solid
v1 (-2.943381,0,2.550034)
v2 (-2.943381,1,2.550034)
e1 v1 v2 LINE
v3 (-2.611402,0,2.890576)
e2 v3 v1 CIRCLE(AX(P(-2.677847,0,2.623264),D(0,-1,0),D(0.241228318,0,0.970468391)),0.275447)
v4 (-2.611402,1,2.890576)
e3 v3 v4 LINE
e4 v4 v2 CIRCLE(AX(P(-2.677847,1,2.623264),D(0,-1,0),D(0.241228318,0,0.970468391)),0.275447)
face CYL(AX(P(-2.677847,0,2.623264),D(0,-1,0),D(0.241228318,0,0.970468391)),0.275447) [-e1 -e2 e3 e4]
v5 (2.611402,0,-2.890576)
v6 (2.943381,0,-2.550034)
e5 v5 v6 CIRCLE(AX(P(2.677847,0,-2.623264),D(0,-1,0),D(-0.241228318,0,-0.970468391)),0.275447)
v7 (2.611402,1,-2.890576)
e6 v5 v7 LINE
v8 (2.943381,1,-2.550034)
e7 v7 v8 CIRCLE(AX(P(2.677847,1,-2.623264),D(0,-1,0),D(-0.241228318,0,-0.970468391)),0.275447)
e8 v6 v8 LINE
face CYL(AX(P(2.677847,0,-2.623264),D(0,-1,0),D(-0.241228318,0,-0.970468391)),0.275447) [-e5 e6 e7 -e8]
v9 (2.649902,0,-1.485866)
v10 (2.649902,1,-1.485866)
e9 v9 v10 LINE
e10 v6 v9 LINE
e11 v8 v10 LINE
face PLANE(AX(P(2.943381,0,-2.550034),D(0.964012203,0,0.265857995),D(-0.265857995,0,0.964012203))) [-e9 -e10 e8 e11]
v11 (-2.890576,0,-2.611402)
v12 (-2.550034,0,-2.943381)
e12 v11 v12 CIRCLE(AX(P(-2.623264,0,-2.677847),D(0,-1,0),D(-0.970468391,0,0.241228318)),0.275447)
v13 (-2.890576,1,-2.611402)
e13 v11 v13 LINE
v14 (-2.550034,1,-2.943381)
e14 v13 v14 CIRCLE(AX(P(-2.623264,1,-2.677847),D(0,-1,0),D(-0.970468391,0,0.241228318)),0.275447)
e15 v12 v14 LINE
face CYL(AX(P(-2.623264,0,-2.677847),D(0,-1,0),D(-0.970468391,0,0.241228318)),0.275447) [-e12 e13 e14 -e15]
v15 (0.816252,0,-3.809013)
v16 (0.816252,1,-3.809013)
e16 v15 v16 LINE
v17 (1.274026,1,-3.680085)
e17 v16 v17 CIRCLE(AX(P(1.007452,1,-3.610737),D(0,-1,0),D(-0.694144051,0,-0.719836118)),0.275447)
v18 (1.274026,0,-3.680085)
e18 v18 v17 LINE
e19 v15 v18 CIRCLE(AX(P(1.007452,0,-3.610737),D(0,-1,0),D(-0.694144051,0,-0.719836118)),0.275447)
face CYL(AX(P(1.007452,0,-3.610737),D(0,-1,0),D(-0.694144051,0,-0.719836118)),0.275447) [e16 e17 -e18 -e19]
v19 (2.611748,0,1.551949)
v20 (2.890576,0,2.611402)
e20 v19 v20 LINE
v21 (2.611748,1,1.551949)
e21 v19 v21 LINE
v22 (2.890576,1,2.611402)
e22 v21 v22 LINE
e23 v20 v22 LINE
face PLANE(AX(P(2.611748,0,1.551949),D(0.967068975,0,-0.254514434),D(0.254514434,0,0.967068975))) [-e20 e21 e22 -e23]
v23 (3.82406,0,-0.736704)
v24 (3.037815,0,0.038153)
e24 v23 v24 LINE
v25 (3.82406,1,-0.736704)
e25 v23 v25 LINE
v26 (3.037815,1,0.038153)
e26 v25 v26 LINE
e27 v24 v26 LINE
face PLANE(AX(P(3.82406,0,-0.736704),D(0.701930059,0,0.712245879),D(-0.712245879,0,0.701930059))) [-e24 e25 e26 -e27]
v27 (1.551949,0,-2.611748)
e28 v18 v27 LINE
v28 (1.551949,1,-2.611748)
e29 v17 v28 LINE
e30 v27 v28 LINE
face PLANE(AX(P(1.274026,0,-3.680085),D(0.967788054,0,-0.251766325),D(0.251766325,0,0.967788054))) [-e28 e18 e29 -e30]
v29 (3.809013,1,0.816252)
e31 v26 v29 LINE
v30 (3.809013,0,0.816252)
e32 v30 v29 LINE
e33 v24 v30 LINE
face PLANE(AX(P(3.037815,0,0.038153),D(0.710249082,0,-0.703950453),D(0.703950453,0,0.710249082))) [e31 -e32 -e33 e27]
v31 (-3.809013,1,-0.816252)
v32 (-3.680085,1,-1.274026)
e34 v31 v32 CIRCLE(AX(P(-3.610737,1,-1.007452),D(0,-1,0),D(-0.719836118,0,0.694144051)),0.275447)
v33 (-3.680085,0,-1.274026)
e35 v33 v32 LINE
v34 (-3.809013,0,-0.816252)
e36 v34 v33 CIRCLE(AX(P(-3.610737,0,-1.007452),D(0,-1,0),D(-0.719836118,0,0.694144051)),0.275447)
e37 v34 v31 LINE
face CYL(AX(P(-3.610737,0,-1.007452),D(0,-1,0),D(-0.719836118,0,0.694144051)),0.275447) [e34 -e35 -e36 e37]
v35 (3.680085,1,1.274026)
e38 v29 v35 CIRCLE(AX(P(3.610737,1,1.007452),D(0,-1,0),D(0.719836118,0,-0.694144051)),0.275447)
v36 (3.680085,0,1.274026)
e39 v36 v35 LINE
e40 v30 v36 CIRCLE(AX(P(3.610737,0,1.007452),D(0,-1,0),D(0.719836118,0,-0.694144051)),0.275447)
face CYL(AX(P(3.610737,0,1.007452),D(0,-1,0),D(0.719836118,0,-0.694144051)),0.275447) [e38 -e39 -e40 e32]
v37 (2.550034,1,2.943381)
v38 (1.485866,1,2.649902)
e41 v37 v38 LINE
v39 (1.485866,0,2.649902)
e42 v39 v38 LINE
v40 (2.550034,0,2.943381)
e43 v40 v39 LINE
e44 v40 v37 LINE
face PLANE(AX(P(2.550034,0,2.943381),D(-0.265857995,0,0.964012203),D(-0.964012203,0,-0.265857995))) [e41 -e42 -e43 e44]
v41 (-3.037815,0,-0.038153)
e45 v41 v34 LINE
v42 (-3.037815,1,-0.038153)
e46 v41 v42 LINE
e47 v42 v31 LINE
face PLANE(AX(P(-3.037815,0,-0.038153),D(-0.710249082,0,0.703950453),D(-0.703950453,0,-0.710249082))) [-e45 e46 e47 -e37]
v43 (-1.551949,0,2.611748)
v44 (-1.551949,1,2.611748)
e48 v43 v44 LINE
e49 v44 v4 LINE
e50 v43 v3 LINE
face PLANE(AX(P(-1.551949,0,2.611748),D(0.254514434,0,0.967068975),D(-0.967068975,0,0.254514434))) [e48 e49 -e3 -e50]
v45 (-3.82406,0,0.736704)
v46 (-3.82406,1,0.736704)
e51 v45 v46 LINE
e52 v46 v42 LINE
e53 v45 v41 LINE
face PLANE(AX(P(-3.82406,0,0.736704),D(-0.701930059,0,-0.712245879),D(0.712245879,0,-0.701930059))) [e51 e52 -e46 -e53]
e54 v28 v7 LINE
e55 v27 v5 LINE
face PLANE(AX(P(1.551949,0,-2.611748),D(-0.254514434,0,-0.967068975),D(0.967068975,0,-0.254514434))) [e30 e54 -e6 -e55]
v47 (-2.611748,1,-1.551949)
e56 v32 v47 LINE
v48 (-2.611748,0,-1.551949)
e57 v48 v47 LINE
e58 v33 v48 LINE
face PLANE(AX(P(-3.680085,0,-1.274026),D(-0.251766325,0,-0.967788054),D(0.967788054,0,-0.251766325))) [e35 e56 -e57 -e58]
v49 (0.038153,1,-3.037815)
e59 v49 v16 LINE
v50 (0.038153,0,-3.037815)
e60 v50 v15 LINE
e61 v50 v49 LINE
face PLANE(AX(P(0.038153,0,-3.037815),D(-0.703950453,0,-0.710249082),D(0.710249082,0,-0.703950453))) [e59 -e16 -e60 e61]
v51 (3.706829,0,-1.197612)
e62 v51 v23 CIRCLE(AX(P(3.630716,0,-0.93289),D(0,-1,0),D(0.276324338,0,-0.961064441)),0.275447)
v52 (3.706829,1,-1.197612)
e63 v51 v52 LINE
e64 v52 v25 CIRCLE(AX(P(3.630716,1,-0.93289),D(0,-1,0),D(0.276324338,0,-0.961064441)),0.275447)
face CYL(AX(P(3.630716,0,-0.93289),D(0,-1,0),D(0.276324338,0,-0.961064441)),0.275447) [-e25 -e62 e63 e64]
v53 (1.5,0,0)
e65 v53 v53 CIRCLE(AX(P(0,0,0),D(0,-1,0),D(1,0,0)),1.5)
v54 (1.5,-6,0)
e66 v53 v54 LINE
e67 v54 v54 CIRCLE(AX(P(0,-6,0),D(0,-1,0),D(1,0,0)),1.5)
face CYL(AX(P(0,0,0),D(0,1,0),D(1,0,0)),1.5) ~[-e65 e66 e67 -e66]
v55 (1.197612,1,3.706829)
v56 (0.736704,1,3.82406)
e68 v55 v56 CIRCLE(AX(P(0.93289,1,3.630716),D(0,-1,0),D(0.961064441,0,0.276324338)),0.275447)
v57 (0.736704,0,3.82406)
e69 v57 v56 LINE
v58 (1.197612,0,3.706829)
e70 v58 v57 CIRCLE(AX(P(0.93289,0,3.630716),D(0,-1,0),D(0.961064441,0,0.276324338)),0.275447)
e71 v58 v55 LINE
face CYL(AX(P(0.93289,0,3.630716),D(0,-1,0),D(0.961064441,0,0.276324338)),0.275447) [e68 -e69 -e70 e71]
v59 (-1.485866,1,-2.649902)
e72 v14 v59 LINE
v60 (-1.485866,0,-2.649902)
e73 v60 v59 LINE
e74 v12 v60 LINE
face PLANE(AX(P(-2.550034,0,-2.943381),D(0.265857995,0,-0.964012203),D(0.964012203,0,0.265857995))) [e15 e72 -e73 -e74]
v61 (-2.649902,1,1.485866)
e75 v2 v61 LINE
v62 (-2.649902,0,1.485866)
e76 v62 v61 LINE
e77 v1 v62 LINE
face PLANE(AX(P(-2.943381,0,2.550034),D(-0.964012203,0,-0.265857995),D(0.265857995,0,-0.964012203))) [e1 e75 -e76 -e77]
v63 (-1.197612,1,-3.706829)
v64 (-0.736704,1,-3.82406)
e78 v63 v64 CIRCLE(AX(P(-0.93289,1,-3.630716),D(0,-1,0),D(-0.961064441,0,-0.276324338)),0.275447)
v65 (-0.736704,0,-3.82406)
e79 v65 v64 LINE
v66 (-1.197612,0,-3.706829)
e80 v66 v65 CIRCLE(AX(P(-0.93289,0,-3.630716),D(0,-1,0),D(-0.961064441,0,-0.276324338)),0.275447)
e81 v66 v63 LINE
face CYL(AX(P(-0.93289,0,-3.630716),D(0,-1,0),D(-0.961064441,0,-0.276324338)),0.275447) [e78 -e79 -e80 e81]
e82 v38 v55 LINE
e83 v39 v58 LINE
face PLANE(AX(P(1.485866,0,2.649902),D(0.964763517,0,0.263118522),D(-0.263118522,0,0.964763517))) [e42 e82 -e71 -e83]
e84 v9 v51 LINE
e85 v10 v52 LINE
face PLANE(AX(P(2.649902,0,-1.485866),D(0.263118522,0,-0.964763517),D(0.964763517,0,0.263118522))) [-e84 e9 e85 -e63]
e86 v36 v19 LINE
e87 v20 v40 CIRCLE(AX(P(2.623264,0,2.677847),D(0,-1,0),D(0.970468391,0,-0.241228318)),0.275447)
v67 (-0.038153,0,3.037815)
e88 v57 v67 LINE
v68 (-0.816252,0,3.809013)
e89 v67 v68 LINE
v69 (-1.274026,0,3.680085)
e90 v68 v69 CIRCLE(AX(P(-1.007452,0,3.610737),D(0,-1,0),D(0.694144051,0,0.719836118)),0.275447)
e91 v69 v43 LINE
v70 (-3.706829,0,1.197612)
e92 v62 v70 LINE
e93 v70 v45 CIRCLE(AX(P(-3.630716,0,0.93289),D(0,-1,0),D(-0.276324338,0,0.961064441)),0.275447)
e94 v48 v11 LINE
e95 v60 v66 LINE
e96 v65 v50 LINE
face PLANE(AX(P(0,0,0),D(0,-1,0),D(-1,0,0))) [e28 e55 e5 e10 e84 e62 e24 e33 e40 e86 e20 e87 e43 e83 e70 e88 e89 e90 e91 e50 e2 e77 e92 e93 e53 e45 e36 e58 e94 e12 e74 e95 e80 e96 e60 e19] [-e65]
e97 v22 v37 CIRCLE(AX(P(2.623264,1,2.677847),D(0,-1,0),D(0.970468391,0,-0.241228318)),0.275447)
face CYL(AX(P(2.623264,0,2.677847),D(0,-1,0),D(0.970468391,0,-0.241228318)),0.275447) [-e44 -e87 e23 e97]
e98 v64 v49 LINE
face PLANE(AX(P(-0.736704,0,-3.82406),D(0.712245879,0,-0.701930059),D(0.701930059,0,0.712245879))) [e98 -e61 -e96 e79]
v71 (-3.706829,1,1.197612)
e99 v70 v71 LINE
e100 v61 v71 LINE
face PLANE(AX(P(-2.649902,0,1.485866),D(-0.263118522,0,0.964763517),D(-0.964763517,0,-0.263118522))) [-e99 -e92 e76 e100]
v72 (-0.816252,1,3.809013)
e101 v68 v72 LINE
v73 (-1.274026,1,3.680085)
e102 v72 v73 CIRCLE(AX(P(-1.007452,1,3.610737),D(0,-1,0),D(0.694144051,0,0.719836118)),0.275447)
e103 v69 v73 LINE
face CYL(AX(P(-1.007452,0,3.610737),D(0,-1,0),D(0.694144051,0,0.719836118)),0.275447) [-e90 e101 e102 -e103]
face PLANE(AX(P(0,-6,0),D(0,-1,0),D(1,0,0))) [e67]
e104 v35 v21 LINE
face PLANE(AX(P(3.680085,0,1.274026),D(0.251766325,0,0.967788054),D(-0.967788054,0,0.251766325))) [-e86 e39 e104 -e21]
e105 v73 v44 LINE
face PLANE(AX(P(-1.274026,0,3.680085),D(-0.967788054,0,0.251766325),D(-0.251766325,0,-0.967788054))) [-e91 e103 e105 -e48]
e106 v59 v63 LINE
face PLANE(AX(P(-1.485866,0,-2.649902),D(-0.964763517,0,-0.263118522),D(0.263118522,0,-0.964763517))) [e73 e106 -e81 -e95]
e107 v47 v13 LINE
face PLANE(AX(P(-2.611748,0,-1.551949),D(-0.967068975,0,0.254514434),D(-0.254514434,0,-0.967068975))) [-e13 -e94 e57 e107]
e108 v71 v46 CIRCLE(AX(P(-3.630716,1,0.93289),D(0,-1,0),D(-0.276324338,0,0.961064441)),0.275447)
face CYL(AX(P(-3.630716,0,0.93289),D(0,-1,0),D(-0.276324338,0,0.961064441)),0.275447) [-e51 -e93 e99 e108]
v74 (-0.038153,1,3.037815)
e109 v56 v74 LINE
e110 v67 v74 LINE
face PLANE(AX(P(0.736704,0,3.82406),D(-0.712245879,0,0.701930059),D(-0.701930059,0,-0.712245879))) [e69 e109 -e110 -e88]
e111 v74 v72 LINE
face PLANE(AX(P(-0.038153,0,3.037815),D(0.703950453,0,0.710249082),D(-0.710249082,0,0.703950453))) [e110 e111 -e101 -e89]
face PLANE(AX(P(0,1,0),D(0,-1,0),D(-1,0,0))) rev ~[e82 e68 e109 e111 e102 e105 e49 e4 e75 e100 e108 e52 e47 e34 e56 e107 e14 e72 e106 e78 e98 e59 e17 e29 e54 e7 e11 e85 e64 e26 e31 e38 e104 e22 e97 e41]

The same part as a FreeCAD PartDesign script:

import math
import FreeCAD as App
import Part
import Sketcher

doc = App.newDocument("Part")
body = doc.addObject("PartDesign::Body", "Body")

sketch1 = doc.addObject("Sketcher::SketchObject", "Sketch")
body.addObject(sketch1)
sketch1.AttachmentSupport = (doc.XZ_Plane, [""])
sketch1.MapMode = "FlatFace"
sketch1.addGeometry(Part.LineSegment(App.Vector(0.816252, -3.809013, 0), App.Vector(0.038153, -3.037815, 0)), False)
sketch1.addGeometry(Part.LineSegment(App.Vector(0.038153, -3.037815, 0), App.Vector(-0.736704, -3.82406, 0)), False)
sketch1.addGeometry(Part.ArcOfCircle(Part.Circle(App.Vector(-0.93289, -3.630716, 0), App.Vector(0, 0, 1), 0.275447), math.radians(-163.959048), math.radians(-44.582059)), False)
sketch1.addGeometry(Part.LineSegment(App.Vector(-1.197612, -3.706829, 0), App.Vector(-1.485866, -2.649902, 0)), False)
sketch1.addGeometry(Part.LineSegment(App.Vector(-1.485866, -2.649902, 0), App.Vector(-2.550034, -2.943381, 0)), False)
sketch1.addGeometry(Part.ArcOfCircle(Part.Circle(App.Vector(-2.623264, -2.677847, 0), App.Vector(0, 0, 1), 0.275447), math.radians(166.040952), math.radians(285.417941)), False)
sketch1.addGeometry(Part.LineSegment(App.Vector(-2.890576, -2.611402, 0), App.Vector(-2.611748, -1.551949, 0)), False)
sketch1.addGeometry(Part.LineSegment(App.Vector(-2.611748, -1.551949, 0), App.Vector(-3.680085, -1.274026, 0)), False)
sketch1.addGeometry(Part.ArcOfCircle(Part.Circle(App.Vector(-3.610737, -1.007452, 0), App.Vector(0, 0, 1), 0.275447), math.radians(136.040952), math.radians(255.417941)), False)
sketch1.addGeometry(Part.LineSegment(App.Vector(-3.809013, -0.816252, 0), App.Vector(-3.037815, -0.038153, 0)), False)
sketch1.addGeometry(Part.LineSegment(App.Vector(-3.037815, -0.038153, 0), App.Vector(-3.82406, 0.736704, 0)), False)
sketch1.addGeometry(Part.ArcOfCircle(Part.Circle(App.Vector(-3.630716, 0.93289, 0), App.Vector(0, 0, 1), 0.275447), math.radians(106.040952), math.radians(225.417941)), False)
sketch1.addGeometry(Part.LineSegment(App.Vector(-3.706829, 1.197612, 0), App.Vector(-2.649902, 1.485866, 0)), False)
sketch1.addGeometry(Part.LineSegment(App.Vector(-2.649902, 1.485866, 0), App.Vector(-2.943381, 2.550034, 0)), False)
sketch1.addGeometry(Part.ArcOfCircle(Part.Circle(App.Vector(-2.677847, 2.623264, 0), App.Vector(0, 0, 1), 0.275447), math.radians(76.040952), math.radians(195.417941)), False)
sketch1.addGeometry(Part.LineSegment(App.Vector(-2.611402, 2.890576, 0), App.Vector(-1.551949, 2.611748, 0)), False)
sketch1.addGeometry(Part.LineSegment(App.Vector(-1.551949, 2.611748, 0), App.Vector(-1.274026, 3.680085, 0)), False)
sketch1.addGeometry(Part.ArcOfCircle(Part.Circle(App.Vector(-1.007452, 3.610737, 0), App.Vector(0, 0, 1), 0.275447), math.radians(46.040952), math.radians(165.417941)), False)
sketch1.addGeometry(Part.LineSegment(App.Vector(-0.816252, 3.809013, 0), App.Vector(-0.038153, 3.037815, 0)), False)
sketch1.addGeometry(Part.LineSegment(App.Vector(-0.038153, 3.037815, 0), App.Vector(0.736704, 3.82406, 0)), False)
sketch1.addGeometry(Part.ArcOfCircle(Part.Circle(App.Vector(0.93289, 3.630716, 0), App.Vector(0, 0, 1), 0.275447), math.radians(16.040952), math.radians(135.417941)), False)
sketch1.addGeometry(Part.LineSegment(App.Vector(1.197612, 3.706829, 0), App.Vector(1.485866, 2.649902, 0)), False)
sketch1.addGeometry(Part.LineSegment(App.Vector(1.485866, 2.649902, 0), App.Vector(2.550034, 2.943381, 0)), False)
sketch1.addGeometry(Part.ArcOfCircle(Part.Circle(App.Vector(2.623264, 2.677847, 0), App.Vector(0, 0, 1), 0.275447), math.radians(-13.959048), math.radians(105.417941)), False)
sketch1.addGeometry(Part.LineSegment(App.Vector(2.890576, 2.611402, 0), App.Vector(2.611748, 1.551949, 0)), False)
sketch1.addGeometry(Part.LineSegment(App.Vector(2.611748, 1.551949, 0), App.Vector(3.680085, 1.274026, 0)), False)
sketch1.addGeometry(Part.ArcOfCircle(Part.Circle(App.Vector(3.610737, 1.007452, 0), App.Vector(0, 0, 1), 0.275447), math.radians(-43.959048), math.radians(75.417941)), False)
sketch1.addGeometry(Part.LineSegment(App.Vector(3.809013, 0.816252, 0), App.Vector(3.037815, 0.038153, 0)), False)
sketch1.addGeometry(Part.LineSegment(App.Vector(3.037815, 0.038153, 0), App.Vector(3.82406, -0.736704, 0)), False)
sketch1.addGeometry(Part.ArcOfCircle(Part.Circle(App.Vector(3.630716, -0.93289, 0), App.Vector(0, 0, 1), 0.275447), math.radians(-73.959048), math.radians(45.417941)), False)
sketch1.addGeometry(Part.LineSegment(App.Vector(3.706829, -1.197612, 0), App.Vector(2.649902, -1.485866, 0)), False)
sketch1.addGeometry(Part.LineSegment(App.Vector(2.649902, -1.485866, 0), App.Vector(2.943381, -2.550034, 0)), False)
sketch1.addGeometry(Part.ArcOfCircle(Part.Circle(App.Vector(2.677847, -2.623264, 0), App.Vector(0, 0, 1), 0.275447), math.radians(-103.959048), math.radians(15.417941)), False)
sketch1.addGeometry(Part.LineSegment(App.Vector(2.611402, -2.890576, 0), App.Vector(1.551949, -2.611748, 0)), False)
sketch1.addGeometry(Part.LineSegment(App.Vector(1.551949, -2.611748, 0), App.Vector(1.274026, -3.680085, 0)), False)
sketch1.addGeometry(Part.ArcOfCircle(Part.Circle(App.Vector(1.007452, -3.610737, 0), App.Vector(0, 0, 1), 0.275447), math.radians(-133.959048), math.radians(-14.582059)), False)
sketch1.addConstraint(Sketcher.Constraint("Coincident", 0, 2, 1, 1))
sketch1.addConstraint(Sketcher.Constraint("Tangent", 1, 2, 2, 2))
sketch1.addConstraint(Sketcher.Constraint("Coincident", 2, 1, 3, 1))
sketch1.addConstraint(Sketcher.Constraint("Coincident", 3, 2, 4, 1))
sketch1.addConstraint(Sketcher.Constraint("Tangent", 4, 2, 5, 2))
sketch1.addConstraint(Sketcher.Constraint("Coincident", 5, 1, 6, 1))
sketch1.addConstraint(Sketcher.Constraint("Coincident", 6, 2, 7, 1))
sketch1.addConstraint(Sketcher.Constraint("Tangent", 7, 2, 8, 2))
sketch1.addConstraint(Sketcher.Constraint("Coincident", 8, 1, 9, 1))
sketch1.addConstraint(Sketcher.Constraint("Coincident", 9, 2, 10, 1))
sketch1.addConstraint(Sketcher.Constraint("Tangent", 10, 2, 11, 2))
sketch1.addConstraint(Sketcher.Constraint("Coincident", 11, 1, 12, 1))
sketch1.addConstraint(Sketcher.Constraint("Coincident", 12, 2, 13, 1))
sketch1.addConstraint(Sketcher.Constraint("Tangent", 13, 2, 14, 2))
sketch1.addConstraint(Sketcher.Constraint("Coincident", 14, 1, 15, 1))
sketch1.addConstraint(Sketcher.Constraint("Coincident", 15, 2, 16, 1))
sketch1.addConstraint(Sketcher.Constraint("Tangent", 16, 2, 17, 2))
sketch1.addConstraint(Sketcher.Constraint("Coincident", 17, 1, 18, 1))
sketch1.addConstraint(Sketcher.Constraint("Coincident", 18, 2, 19, 1))
sketch1.addConstraint(Sketcher.Constraint("Tangent", 19, 2, 20, 2))
sketch1.addConstraint(Sketcher.Constraint("Coincident", 20, 1, 21, 1))
sketch1.addConstraint(Sketcher.Constraint("Coincident", 21, 2, 22, 1))
sketch1.addConstraint(Sketcher.Constraint("Tangent", 22, 2, 23, 2))
sketch1.addConstraint(Sketcher.Constraint("Coincident", 23, 1, 24, 1))
sketch1.addConstraint(Sketcher.Constraint("Coincident", 24, 2, 25, 1))
sketch1.addConstraint(Sketcher.Constraint("Tangent", 25, 2, 26, 2))
sketch1.addConstraint(Sketcher.Constraint("Coincident", 26, 1, 27, 1))
sketch1.addConstraint(Sketcher.Constraint("Coincident", 27, 2, 28, 1))
sketch1.addConstraint(Sketcher.Constraint("Tangent", 28, 2, 29, 2))
sketch1.addConstraint(Sketcher.Constraint("Coincident", 29, 1, 30, 1))
sketch1.addConstraint(Sketcher.Constraint("Coincident", 30, 2, 31, 1))
sketch1.addConstraint(Sketcher.Constraint("Tangent", 31, 2, 32, 2))
sketch1.addConstraint(Sketcher.Constraint("Coincident", 32, 1, 33, 1))
sketch1.addConstraint(Sketcher.Constraint("Coincident", 33, 2, 34, 1))
sketch1.addConstraint(Sketcher.Constraint("Tangent", 34, 2, 35, 2))
sketch1.addConstraint(Sketcher.Constraint("Coincident", 35, 1, 0, 1))
sketch1.addConstraint(Sketcher.Constraint("Equal", 2, 5))
sketch1.addConstraint(Sketcher.Constraint("Equal", 5, 8))
sketch1.addConstraint(Sketcher.Constraint("Equal", 8, 11))
sketch1.addConstraint(Sketcher.Constraint("Equal", 11, 14))
sketch1.addConstraint(Sketcher.Constraint("Equal", 14, 17))
sketch1.addConstraint(Sketcher.Constraint("Equal", 17, 20))
sketch1.addConstraint(Sketcher.Constraint("Equal", 20, 23))
sketch1.addConstraint(Sketcher.Constraint("Equal", 23, 26))
sketch1.addConstraint(Sketcher.Constraint("Equal", 26, 29))
sketch1.addConstraint(Sketcher.Constraint("Equal", 29, 32))
sketch1.addConstraint(Sketcher.Constraint("Equal", 32, 35))
sketch1.addConstraint(Sketcher.Constraint("Symmetric", 2, 3, 20, 3, -1, 1))
sketch1.addConstraint(Sketcher.Constraint("Symmetric", 5, 3, 23, 3, -1, 1))
sketch1.addConstraint(Sketcher.Constraint("Symmetric", 8, 3, 26, 3, -1, 1))
sketch1.addConstraint(Sketcher.Constraint("Symmetric", 11, 3, 29, 3, -1, 1))
sketch1.addConstraint(Sketcher.Constraint("Symmetric", 14, 3, 32, 3, -1, 1))
sketch1.addConstraint(Sketcher.Constraint("Symmetric", 17, 3, 35, 3, -1, 1))
sketch1.addConstraint(Sketcher.Constraint("Symmetric", 0, 2, 18, 2, -1, 1))
sketch1.addConstraint(Sketcher.Constraint("Symmetric", 3, 2, 21, 2, -1, 1))
sketch1.addConstraint(Sketcher.Constraint("Symmetric", 6, 2, 24, 2, -1, 1))
sketch1.addConstraint(Sketcher.Constraint("Symmetric", 9, 2, 27, 2, -1, 1))
sketch1.addConstraint(Sketcher.Constraint("Symmetric", 12, 2, 30, 2, -1, 1))
sketch1.addConstraint(Sketcher.Constraint("Symmetric", 15, 2, 33, 2, -1, 1))
sketch1.addConstraint(Sketcher.Constraint("Perpendicular", 0, 9))
sketch1.addConstraint(Sketcher.Constraint("Perpendicular", 1, 10))
sketch1.addConstraint(Sketcher.Constraint("Perpendicular", 3, 12))
sketch1.addConstraint(Sketcher.Constraint("Perpendicular", 4, 13))
sketch1.addConstraint(Sketcher.Constraint("Perpendicular", 6, 15))
sketch1.addConstraint(Sketcher.Constraint("Perpendicular", 7, 16))
sketch1.addConstraint(Sketcher.Constraint("Perpendicular", 9, 18))
sketch1.addConstraint(Sketcher.Constraint("Perpendicular", 12, 21))
sketch1.addConstraint(Sketcher.Constraint("Perpendicular", 15, 24))
sketch1.addConstraint(Sketcher.Constraint("Perpendicular", 18, 27))
sketch1.addConstraint(Sketcher.Constraint("Perpendicular", 21, 30))
sketch1.addConstraint(Sketcher.Constraint("Perpendicular", 24, 33))
sketch1.addConstraint(Sketcher.Constraint("Equal", 0, 3))
sketch1.addConstraint(Sketcher.Constraint("Equal", 1, 4))
sketch1.addConstraint(Sketcher.Constraint("Equal", 3, 6))
sketch1.addConstraint(Sketcher.Constraint("Equal", 4, 7))
sketch1.addConstraint(Sketcher.Constraint("Equal", 6, 9))
sketch1.addConstraint(Sketcher.Constraint("Equal", 7, 10))
sketch1.addConstraint(Sketcher.Constraint("Equal", 9, 12))
sketch1.addConstraint(Sketcher.Constraint("Equal", 10, 13))
sketch1.addConstraint(Sketcher.Constraint("Equal", 12, 15))
sketch1.addConstraint(Sketcher.Constraint("Equal", 13, 16))
sketch1.addConstraint(Sketcher.Constraint("Radius", 2, 0.275447))
sketch1.addConstraint(Sketcher.Constraint("DistanceX", 8, 3, 23, 3, 6.234001))
sketch1.addConstraint(Sketcher.Constraint("DistanceY", 3, 2, -1, 1, 2.649902))
sketch1.addConstraint(Sketcher.Constraint("DistanceY", 5, 1, -1, 1, 2.611402))
sketch1.addConstraint(Sketcher.Constraint("DistanceX", 12, 2, -1, 1, 2.649902))
sketch1.addConstraint(Sketcher.Constraint("DistanceX", 14, 1, -1, 1, 2.611402))
sketch1.addConstraint(Sketcher.Constraint("DistanceY", 8, 3, 23, 3, 3.685299))
sketch1.addConstraint(Sketcher.Constraint("DistanceX", 0, 2, 35, 3, 0.969298))
sketch1.addConstraint(Sketcher.Constraint("DistanceY", 2, 3, 0, 2, 0.592901))
sketch1.addConstraint(Sketcher.Constraint("DistanceX", 5, 3, 3, 2, 1.137398))
sketch1.addConstraint(Sketcher.Constraint("DistanceY", 8, 3, 8, 1, 0.1912))
sketch1.addConstraint(Sketcher.Constraint("DistanceX", 8, 1, 9, 2, 0.771198))
sketch1.addConstraint(Sketcher.Constraint("DistanceY", 8, 1, 9, 2, 0.778099))
sketch1.addConstraint(Sketcher.Constraint("DistanceX", 2, 3, -1, 1, 0.93289))
sketch1.addConstraint(Sketcher.Constraint("DistanceY", 1, 2, -1, 1, 3.82406))
pad1 = doc.addObject("PartDesign::Pad", "Pad")
body.addObject(pad1)
pad1.Profile = sketch1
pad1.Length = 1
pad1.Reversed = True

sketch2 = doc.addObject("Sketcher::SketchObject", "Sketch001")
body.addObject(sketch2)
sketch2.AttachmentSupport = (doc.XZ_Plane, [""])
sketch2.MapMode = "FlatFace"
sketch2.addGeometry(Part.Circle(App.Vector(0, 0, 0), App.Vector(0, 0, 1), 1.5), False)
sketch2.addConstraint(Sketcher.Constraint("Coincident", 0, 3, -1, 1))
sketch2.addConstraint(Sketcher.Constraint("Diameter", 0, 3.0))
pad2 = doc.addObject("PartDesign::Pad", "Pad001")
body.addObject(pad2)
pad2.Profile = sketch2
pad2.Length = 6

doc.recompute()
